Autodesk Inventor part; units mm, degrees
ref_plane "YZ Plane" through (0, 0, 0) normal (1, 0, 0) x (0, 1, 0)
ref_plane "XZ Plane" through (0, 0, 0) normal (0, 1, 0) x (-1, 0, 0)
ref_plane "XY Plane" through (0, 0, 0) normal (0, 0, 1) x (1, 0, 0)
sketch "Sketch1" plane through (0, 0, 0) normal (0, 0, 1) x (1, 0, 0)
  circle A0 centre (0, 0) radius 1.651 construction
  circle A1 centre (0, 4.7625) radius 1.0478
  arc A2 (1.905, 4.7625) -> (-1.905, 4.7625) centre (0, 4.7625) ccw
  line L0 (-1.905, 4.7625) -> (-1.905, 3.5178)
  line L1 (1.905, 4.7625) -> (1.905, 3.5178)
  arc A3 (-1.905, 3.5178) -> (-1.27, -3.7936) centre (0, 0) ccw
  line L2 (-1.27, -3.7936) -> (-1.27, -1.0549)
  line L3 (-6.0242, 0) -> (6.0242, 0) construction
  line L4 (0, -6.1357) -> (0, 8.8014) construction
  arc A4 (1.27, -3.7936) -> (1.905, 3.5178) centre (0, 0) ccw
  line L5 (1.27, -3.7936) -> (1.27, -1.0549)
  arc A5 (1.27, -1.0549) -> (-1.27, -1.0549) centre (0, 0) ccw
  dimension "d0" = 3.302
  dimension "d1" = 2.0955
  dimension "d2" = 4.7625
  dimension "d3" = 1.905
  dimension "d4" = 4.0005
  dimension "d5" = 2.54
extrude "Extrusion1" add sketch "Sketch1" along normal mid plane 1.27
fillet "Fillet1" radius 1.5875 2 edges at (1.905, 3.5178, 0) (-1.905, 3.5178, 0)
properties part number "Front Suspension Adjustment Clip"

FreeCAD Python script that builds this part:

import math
import FreeCAD as App
import Part
import Sketcher
from FreeCAD import Vector
Q = App.Units.Quantity


def edges_at(feature, points):
    """Names of the edges that pass closest to the given points."""
    edges = feature.Shape.Edges
    near = lambda p: min(range(len(edges)), key=lambda i: edges[i].distToShape(Part.Vertex(*p))[0])
    return sorted({f"Edge{near(p) + 1}" for p in points})

doc = App.newDocument("Part")
params = doc.addObject("Spreadsheet::Sheet", "Params")
for row, (alias, value) in enumerate([
    ("sketch1_radius", "0.075 in"),
    ("sketch1_radius2", "0.065 in"),
    ("pad1_length", "0.05 in"),
    ("fillet_radius", "0.0625 in"),
], start=1):
    params.set(f"A{row}", alias)
    params.set(f"B{row}", "=" + value)
    params.setAlias(f"B{row}", alias)

body = doc.addObject("PartDesign::Body", "Body")

# Sketch on XY plane
sketch1 = body.newObject("Sketcher::SketchObject", "Sketch")
sketch1.AttachmentSupport = (doc.getObject("XY_Plane"), [""])
sketch1.MapMode = "FlatFace"
sketch1.addGeometry([
    Part.LineSegment(Vector(1.905, 3.5178, 0), Vector(1.905, 4.7625, 0)),  # 0
    Part.ArcOfCircle(Part.Circle(Vector(0, 4.7625, 0), Vector(0, 0, 1), 1.905), math.radians(0), math.radians(180)),  # 1
    Part.LineSegment(Vector(-1.905, 4.7625, 0), Vector(-1.905, 3.5178, 0)),  # 2
    Part.ArcOfCircle(Part.Circle(Vector(0, 0, 0), Vector(0, 0, 1), 4.000538), math.radians(118.436947), math.radians(251.490775)),  # 3
    Part.LineSegment(Vector(-1.27, -3.7936, 0), Vector(-1.27, -1.0549, 0)),  # 4
    Part.ArcOfCircle(Part.Circle(Vector(0, 0, 0), Vector(0, 0, 1), 1.650974), math.radians(-39.714037), math.radians(219.714037)),  # 5
    Part.LineSegment(Vector(1.27, -1.0549, 0), Vector(1.27, -3.7936, 0)),  # 6
    Part.ArcOfCircle(Part.Circle(Vector(0, 0, 0), Vector(0, 0, 1), 4.000493), math.radians(-71.490775), math.radians(61.563053)),  # 7
    Part.Circle(Vector(0, 4.7625, 0), Vector(0, 0, 1), 1.0478),  # 8
], False)
sketch1.addConstraint([
    Sketcher.Constraint("Tangent", 0, 2, 1, 1),
    Sketcher.Constraint("Tangent", 1, 2, 2, 1),
    Sketcher.Constraint("Coincident", 2, 2, 3, 1),
    Sketcher.Constraint("Coincident", 3, 2, 4, 1),
    Sketcher.Constraint("Coincident", 4, 2, 5, 2),
    Sketcher.Constraint("Coincident", 5, 1, 6, 1),
    Sketcher.Constraint("Coincident", 6, 2, 7, 1),
    Sketcher.Constraint("Coincident", 7, 2, 0, 1),
    Sketcher.Constraint("Vertical", 0),
    Sketcher.Constraint("Vertical", 2),
    Sketcher.Constraint("Vertical", 4),
    Sketcher.Constraint("Vertical", 6),
    Sketcher.Constraint("Coincident", 3, 3, -1, 1),
    Sketcher.Constraint("Coincident", 5, 3, -1, 1),
    Sketcher.Constraint("Coincident", 7, 3, -1, 1),
    Sketcher.Constraint("Coincident", 8, 3, 1, 3),
    Sketcher.Constraint("Equal", 3, 7),
    Sketcher.Constraint("PointOnObject", 1, 3, -2),
    Sketcher.Constraint("Horizontal", 4, 2, 5, 1),
    Sketcher.Constraint("Radius", 1, Q("0.075 in")),
    Sketcher.Constraint("Radius", 5, Q("0.065 in")),
    Sketcher.Constraint("Diameter", 8, Q("0.0825 in")),
    Sketcher.Constraint("Radius", 3, Q("0.1575 in")),
    Sketcher.Constraint("DistanceX", 4, 2, 5, 1, Q("0.1 in")),
    Sketcher.Constraint("DistanceY", -1, 1, 1, 3, Q("0.1875 in")),
])
sketch1.setExpression("Constraints[19]", "Params.sketch1_radius")
sketch1.setExpression("Constraints[20]", "Params.sketch1_radius2")
pad1 = body.newObject("PartDesign::Pad", "Pad")
pad1.Profile = sketch1
pad1.setExpression("Length", "Params.pad1_length")
pad1.Midplane = True
doc.recompute()

fillet = body.newObject("PartDesign::Fillet", "Fillet")
fillet.Base = (pad1, edges_at(pad1, [(1.905, 3.518, 0), (-1.905, 3.518, 0)]))
fillet.setExpression("Radius", "Params.fillet_radius")

doc.recompute()
